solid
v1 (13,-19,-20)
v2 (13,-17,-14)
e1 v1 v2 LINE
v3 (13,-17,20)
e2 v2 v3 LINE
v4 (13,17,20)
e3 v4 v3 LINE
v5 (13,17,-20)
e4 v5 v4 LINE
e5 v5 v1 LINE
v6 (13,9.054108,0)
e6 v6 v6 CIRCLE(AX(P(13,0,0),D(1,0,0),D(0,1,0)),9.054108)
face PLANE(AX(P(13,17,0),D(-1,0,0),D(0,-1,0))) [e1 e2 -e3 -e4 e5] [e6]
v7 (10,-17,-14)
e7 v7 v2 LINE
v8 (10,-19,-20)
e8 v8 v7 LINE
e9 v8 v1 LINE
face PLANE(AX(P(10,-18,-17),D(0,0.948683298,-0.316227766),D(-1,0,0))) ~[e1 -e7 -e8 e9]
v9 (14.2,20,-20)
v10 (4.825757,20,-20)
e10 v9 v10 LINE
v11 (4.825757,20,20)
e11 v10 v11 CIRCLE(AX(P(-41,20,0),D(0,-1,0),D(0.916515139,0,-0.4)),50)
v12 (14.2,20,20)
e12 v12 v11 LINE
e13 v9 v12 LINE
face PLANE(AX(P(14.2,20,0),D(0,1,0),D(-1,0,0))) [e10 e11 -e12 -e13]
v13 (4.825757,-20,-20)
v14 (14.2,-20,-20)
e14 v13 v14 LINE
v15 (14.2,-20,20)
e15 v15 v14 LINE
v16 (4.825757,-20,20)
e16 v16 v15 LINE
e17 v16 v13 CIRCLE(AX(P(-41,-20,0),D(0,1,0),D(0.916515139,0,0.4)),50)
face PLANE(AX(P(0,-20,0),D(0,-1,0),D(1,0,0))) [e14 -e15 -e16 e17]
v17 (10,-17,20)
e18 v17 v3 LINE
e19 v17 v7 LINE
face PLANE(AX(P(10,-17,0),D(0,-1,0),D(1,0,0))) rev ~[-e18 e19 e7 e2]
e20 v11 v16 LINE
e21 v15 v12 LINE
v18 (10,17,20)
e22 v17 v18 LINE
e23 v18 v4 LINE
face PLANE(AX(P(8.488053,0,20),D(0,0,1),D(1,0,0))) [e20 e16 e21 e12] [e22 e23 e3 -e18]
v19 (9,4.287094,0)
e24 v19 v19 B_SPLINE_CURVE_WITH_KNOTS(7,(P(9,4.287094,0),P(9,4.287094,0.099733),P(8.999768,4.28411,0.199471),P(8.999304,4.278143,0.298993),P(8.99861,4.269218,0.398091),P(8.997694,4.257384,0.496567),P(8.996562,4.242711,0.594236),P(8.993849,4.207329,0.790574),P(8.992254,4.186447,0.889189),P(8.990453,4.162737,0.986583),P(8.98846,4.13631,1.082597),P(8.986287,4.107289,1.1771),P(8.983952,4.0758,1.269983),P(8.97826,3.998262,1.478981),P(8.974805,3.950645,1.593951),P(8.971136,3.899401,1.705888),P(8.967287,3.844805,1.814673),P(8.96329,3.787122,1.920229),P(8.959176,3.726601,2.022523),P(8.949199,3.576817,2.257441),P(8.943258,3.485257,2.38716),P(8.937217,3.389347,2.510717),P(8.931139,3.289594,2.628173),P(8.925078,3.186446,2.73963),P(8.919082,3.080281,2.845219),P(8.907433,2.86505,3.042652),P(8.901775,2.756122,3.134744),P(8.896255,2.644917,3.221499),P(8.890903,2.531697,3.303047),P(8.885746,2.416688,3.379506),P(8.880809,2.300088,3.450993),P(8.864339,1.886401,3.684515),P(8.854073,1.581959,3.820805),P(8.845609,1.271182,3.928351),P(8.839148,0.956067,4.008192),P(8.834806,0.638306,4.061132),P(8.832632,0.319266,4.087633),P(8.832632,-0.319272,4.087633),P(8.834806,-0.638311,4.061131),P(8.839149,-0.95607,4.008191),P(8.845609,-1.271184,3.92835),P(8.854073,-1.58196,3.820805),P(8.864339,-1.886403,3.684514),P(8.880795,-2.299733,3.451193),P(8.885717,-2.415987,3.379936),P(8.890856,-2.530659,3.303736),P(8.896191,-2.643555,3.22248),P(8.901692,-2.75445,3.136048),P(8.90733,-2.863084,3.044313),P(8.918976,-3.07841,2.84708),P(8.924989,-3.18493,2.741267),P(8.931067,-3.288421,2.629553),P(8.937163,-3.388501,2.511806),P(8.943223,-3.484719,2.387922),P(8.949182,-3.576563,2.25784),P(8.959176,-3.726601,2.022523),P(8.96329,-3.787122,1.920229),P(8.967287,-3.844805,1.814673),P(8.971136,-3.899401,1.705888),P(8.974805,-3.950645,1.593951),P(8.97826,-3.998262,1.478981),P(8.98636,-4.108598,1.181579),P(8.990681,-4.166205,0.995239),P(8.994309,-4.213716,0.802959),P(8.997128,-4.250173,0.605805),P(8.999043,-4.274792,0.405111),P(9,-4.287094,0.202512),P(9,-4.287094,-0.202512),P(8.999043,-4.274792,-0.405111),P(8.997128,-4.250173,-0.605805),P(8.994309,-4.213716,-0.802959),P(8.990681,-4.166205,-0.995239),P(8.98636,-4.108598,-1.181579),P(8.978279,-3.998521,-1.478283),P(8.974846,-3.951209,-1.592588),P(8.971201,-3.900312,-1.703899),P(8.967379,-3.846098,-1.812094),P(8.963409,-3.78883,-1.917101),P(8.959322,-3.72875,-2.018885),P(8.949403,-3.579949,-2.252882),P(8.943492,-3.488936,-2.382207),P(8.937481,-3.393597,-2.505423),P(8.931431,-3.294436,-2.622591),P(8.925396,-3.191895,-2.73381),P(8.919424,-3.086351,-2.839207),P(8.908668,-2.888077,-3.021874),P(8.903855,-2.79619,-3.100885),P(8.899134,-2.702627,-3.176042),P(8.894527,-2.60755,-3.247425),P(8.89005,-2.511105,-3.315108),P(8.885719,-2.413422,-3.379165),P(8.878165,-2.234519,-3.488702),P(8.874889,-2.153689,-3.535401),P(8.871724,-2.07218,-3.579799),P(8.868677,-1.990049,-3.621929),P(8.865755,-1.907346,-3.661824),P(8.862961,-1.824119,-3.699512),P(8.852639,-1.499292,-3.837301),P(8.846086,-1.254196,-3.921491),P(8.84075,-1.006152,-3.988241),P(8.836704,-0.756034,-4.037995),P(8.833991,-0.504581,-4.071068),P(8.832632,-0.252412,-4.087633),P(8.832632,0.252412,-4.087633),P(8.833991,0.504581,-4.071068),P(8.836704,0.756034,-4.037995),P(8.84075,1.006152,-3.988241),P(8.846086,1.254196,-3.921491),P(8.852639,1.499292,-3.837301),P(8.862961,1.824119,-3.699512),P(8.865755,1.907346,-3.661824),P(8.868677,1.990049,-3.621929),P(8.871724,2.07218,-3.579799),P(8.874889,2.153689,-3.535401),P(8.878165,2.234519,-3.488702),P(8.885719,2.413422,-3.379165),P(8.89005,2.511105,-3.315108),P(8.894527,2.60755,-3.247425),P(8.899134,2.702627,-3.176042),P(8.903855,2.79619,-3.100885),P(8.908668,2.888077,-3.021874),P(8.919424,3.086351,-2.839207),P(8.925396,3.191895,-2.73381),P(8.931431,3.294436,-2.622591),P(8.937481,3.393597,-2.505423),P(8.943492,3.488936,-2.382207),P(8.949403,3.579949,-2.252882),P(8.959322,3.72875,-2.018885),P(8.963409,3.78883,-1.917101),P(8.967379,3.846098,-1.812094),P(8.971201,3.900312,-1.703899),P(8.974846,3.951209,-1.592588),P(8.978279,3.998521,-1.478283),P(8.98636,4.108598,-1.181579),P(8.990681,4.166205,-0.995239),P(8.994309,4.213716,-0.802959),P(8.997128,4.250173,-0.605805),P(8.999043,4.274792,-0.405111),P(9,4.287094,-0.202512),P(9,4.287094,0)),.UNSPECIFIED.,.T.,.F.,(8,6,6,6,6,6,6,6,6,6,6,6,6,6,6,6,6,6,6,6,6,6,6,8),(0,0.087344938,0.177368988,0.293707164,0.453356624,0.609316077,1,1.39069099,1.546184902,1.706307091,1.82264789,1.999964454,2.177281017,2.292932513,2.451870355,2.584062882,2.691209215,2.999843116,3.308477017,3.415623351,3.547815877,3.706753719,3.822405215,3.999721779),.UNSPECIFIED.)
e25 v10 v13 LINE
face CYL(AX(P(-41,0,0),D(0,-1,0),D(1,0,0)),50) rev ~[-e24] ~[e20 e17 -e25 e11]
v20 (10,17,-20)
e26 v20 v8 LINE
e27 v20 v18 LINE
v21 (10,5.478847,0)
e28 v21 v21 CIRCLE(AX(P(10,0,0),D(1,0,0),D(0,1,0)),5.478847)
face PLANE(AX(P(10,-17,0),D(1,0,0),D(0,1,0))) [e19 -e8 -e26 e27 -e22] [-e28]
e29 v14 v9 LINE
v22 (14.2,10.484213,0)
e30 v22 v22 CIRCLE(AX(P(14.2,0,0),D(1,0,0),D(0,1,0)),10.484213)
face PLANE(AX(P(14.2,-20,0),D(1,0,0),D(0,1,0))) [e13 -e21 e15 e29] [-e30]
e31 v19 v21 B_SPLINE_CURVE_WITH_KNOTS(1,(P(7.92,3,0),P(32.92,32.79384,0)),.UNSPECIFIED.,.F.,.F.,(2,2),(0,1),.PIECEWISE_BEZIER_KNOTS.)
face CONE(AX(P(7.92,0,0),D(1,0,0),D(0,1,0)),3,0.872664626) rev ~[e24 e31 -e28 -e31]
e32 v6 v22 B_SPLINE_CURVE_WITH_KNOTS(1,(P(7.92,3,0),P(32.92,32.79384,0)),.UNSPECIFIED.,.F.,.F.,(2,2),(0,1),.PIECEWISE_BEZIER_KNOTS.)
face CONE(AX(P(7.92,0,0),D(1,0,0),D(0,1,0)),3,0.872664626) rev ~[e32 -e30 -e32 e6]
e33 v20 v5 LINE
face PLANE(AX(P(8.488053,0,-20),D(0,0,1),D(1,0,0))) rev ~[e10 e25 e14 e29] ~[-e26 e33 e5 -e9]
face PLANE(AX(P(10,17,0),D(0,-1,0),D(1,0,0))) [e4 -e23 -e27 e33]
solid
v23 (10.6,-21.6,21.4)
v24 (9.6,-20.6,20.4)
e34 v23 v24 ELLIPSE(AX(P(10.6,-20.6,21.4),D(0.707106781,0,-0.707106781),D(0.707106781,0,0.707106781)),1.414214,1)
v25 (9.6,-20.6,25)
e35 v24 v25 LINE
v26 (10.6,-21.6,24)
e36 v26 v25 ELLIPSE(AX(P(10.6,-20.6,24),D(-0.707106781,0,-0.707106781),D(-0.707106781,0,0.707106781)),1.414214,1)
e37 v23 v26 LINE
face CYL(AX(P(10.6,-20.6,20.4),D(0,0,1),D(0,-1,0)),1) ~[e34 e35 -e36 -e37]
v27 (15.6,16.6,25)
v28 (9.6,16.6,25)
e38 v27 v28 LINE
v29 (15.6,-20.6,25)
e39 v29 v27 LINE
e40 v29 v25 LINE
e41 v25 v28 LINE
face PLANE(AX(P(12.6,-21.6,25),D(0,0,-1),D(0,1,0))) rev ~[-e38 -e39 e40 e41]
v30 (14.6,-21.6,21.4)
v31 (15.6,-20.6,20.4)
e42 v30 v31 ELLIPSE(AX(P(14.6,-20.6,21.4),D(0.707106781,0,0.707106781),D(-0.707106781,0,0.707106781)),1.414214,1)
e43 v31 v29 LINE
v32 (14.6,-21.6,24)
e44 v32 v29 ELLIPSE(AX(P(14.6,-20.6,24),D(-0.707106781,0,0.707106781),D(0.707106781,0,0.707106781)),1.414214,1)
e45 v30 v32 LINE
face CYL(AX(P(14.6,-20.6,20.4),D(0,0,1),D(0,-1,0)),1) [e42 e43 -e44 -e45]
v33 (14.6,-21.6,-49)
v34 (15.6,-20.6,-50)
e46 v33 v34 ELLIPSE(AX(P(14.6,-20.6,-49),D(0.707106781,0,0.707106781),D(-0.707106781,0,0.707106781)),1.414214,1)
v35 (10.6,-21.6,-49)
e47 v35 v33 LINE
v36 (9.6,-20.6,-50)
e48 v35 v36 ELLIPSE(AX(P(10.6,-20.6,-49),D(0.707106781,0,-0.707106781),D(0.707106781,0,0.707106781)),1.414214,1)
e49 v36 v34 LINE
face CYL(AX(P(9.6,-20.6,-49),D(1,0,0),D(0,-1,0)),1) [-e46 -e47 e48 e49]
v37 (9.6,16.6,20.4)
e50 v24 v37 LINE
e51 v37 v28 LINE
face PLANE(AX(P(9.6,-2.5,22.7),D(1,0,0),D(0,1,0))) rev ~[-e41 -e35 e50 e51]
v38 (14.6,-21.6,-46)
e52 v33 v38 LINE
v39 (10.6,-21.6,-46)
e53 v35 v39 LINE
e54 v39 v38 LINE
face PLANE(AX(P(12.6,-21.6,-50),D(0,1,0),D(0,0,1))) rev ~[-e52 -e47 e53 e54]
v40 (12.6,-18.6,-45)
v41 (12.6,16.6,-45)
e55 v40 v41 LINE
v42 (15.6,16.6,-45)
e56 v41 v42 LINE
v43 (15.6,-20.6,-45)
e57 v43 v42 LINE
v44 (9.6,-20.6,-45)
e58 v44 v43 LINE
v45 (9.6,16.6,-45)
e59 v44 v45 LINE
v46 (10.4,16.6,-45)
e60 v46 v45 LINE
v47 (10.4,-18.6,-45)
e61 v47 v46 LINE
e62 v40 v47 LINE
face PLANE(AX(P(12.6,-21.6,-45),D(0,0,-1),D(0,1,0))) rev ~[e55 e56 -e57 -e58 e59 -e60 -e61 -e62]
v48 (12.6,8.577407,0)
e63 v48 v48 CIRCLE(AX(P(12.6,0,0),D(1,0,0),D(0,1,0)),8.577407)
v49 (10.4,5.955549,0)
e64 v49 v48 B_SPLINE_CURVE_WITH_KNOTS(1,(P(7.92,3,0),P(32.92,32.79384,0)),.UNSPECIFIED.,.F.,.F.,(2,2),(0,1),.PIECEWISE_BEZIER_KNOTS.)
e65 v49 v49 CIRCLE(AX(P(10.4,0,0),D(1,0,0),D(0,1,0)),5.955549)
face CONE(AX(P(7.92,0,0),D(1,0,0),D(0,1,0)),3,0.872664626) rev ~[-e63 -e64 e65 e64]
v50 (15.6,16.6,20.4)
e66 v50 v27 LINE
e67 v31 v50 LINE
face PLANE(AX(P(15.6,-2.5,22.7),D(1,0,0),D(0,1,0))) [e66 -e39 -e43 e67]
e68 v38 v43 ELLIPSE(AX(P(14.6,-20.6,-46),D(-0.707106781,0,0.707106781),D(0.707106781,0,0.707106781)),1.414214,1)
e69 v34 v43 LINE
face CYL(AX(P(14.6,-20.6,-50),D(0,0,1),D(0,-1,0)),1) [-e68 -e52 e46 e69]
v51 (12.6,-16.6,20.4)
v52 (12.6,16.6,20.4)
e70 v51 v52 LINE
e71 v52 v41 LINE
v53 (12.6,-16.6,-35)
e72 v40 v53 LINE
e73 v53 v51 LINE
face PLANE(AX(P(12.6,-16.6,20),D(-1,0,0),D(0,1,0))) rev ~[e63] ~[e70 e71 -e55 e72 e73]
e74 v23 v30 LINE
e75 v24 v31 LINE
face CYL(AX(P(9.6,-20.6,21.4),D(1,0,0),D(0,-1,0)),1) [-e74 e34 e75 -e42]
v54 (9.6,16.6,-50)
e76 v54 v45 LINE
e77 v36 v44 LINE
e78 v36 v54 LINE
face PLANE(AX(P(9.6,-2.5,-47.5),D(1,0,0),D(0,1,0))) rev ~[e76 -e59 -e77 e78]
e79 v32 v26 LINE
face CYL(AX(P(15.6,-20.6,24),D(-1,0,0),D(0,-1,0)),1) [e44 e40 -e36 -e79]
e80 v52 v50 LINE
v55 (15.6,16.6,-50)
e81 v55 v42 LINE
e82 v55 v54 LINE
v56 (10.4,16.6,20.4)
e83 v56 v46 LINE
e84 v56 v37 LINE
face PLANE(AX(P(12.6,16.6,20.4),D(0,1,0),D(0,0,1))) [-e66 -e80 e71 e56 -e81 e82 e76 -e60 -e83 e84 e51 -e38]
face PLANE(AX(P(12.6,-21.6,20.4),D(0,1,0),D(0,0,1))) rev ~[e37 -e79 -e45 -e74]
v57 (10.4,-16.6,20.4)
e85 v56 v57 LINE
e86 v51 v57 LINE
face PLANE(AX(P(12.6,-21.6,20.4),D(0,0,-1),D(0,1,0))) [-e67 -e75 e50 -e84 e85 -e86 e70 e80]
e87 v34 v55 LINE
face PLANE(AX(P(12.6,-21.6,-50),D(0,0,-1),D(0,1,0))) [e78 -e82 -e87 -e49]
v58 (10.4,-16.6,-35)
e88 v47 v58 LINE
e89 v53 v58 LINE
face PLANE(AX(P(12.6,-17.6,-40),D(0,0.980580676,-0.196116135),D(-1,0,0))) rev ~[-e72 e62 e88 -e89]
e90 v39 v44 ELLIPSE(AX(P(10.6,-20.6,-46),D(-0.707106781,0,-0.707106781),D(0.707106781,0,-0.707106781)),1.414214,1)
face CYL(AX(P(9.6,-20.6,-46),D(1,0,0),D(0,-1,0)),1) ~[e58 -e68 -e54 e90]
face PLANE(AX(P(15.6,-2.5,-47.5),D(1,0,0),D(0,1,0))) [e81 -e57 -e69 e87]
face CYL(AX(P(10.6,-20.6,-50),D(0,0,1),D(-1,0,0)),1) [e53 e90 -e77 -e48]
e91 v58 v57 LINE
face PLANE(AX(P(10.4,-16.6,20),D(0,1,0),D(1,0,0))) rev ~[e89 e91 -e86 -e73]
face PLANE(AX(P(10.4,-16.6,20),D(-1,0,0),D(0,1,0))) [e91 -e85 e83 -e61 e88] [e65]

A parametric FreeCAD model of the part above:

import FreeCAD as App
import Part
import Sketcher


def edges_at(feature, points):
    """Names of the edges that pass closest to the given points."""
    edges = feature.Shape.Edges
    near = lambda p: min(range(len(edges)), key=lambda i: edges[i].distToShape(Part.Vertex(*p))[0])
    return sorted({f"Edge{near(p) + 1}" for p in points})


def add_polygon(sketch, points):
    """Adds a closed chain of lines whose ends are joined by coincident constraints."""
    first, n = sketch.GeometryCount, len(points)
    for a, b in zip(points, points[1:] + points[:1]):
        sketch.addGeometry(Part.LineSegment(App.Vector(*a, 0), App.Vector(*b, 0)), False)
    for i in range(n):
        sketch.addConstraint(Sketcher.Constraint("Coincident", first + i, 2, first + (i + 1) % n, 1))

doc = App.newDocument("Part")
body = doc.addObject("PartDesign::Body", "Body")

# Sketch on XY plane
sketch1 = doc.addObject("Sketcher::SketchObject", "Sketch")
body.addObject(sketch1)
sketch1.AttachmentSupport = (doc.XY_Plane, [""])
sketch1.MapMode = "FlatFace"
add_polygon(sketch1, [(14.2, -20), (14.2, 20), (0, 20), (0, -20)])  # lines 0-3
add_polygon(sketch1, [(10, -17), (10, 17), (13, 17), (13, -17)])  # lines 4-7
sketch1.addConstraint([
    Sketcher.Constraint("Vertical", 0),
    Sketcher.Constraint("Horizontal", 1),
    Sketcher.Constraint("Vertical", 2),
    Sketcher.Constraint("Horizontal", 3),
    Sketcher.Constraint("Vertical", 4),
    Sketcher.Constraint("Horizontal", 5),
    Sketcher.Constraint("Vertical", 6),
    Sketcher.Constraint("Horizontal", 7),
    Sketcher.Constraint("Symmetric", 1, 2, 2, 2, -1, 1),
    Sketcher.Constraint("DistanceX", 5, 1, 5, 2, 3.0),
    Sketcher.Constraint("DistanceY", 0, 1, 0, 2, 40.0),
    Sketcher.Constraint("DistanceY", 4, 1, 4, 2, 34.0),
    Sketcher.Constraint("DistanceX", 1, 2, 1, 1, 14.2),
    Sketcher.Constraint("DistanceX", -1, 1, 4, 2, 10.0),
    Sketcher.Constraint("DistanceY", -1, 1, 4, 2, 17.0),
])
pad1 = doc.addObject("PartDesign::Pad", "Pad")
body.addObject(pad1)
pad1.Profile = sketch1
pad1.Length = 40
pad1.Midplane = True

# Sketch on XZ plane
sketch2 = doc.addObject("Sketcher::SketchObject", "Sketch001")
body.addObject(sketch2)
sketch2.AttachmentSupport = (doc.XZ_Plane, [""])
sketch2.MapMode = "FlatFace"
sketch2.addGeometry(Part.Circle(App.Vector(-41, 0, 0), App.Vector(0, 0, 1), 50), False)
sketch2.addConstraint([
    Sketcher.Constraint("PointOnObject", 0, 3, -1),
    Sketcher.Constraint("Diameter", 0, 100.0),
    Sketcher.Constraint("DistanceX", 0, 3, -1, 1, 41.0),
])
pocket1 = doc.addObject("PartDesign::Pocket", "Pocket")
body.addObject(pocket1)
pocket1.Profile = sketch2
pocket1.Length = 50
pocket1.Midplane = True
body2 = doc.addObject("PartDesign::Body", "Body001")

# Sketch on XY plane
sketch3 = doc.addObject("Sketcher::SketchObject", "Sketch002")
body2.addObject(sketch3)
sketch3.AttachmentSupport = (doc.getObject("XY_Plane001"), [""])
sketch3.MapMode = "FlatFace"
sketch3.AttachmentOffset = App.Placement(App.Vector(0, 0, 20), App.Rotation())
add_polygon(sketch3, [(10.4, 16.6), (10.4, -16.6), (12.6, -16.6), (12.6, 16.6)])  # lines 0-3
sketch3.addConstraint([
    Sketcher.Constraint("Vertical", 0),
    Sketcher.Constraint("Horizontal", 1),
    Sketcher.Constraint("Vertical", 2),
    Sketcher.Constraint("Horizontal", 3),
    Sketcher.Constraint("DistanceX", 1, 1, 1, 2, 2.2),
    Sketcher.Constraint("DistanceY", 0, 2, 0, 1, 33.2),
    Sketcher.Constraint("DistanceX", -1, 1, 0, 2, 10.4),
    Sketcher.Constraint("DistanceY", 0, 2, -1, 1, 16.6),
])
pad2 = doc.addObject("PartDesign::Pad", "Pad001")
body2.addObject(pad2)
pad2.Profile = sketch3
pad2.Type = "TwoLengths"
pad2.Length = 70
pad2.Length2 = 5
pad2.Reversed = True
body3 = doc.addObject("PartDesign::Body", "Body002")

# Sketch on YZ plane
sketch4 = doc.addObject("Sketcher::SketchObject", "Sketch003")
body3.addObject(sketch4)
sketch4.AttachmentSupport = (doc.getObject("YZ_Plane002"), [""])
sketch4.MapMode = "FlatFace"
sketch4.AttachmentOffset = App.Placement(App.Vector(0, 0, 7.92), App.Rotation())
sketch4.addGeometry(Part.Circle(App.Vector(0, 0, 0), App.Vector(0, 0, 1), 3), False)
sketch4.addConstraint([
    Sketcher.Constraint("Coincident", 0, 3, -1, 1),
    Sketcher.Constraint("Diameter", 0, 6.0),
])
pad3 = doc.addObject("PartDesign::Pad", "Pad002")
body3.addObject(pad3)
pad3.Profile = sketch4
pad3.Length = 25
pad3.TaperAngle = 50
doc.recompute()

body4 = doc.addObject("PartDesign::Body", "Body003")
body4.BaseFeature = body3
boolean = doc.addObject("PartDesign::Boolean", "Boolean")
body.addObject(boolean)
boolean.Type = "Cut"
boolean.addObjects([body4])
doc.recompute()

chamfer = doc.addObject("PartDesign::Chamfer", "Chamfer")
body.addObject(chamfer)
chamfer.Base = (boolean, edges_at(boolean, [(11.5, -17, -20)]))
chamfer.ChamferType = "Two distances"
chamfer.Size = 2
chamfer.Size2 = 6
doc.recompute()

boolean2 = doc.addObject("PartDesign::Boolean", "Boolean001")
body2.addObject(boolean2)
boolean2.Type = "Cut"
boolean2.addObjects([body3])

# Sketch on YZ plane
sketch5 = doc.addObject("Sketcher::SketchObject", "Sketch004")
body2.addObject(sketch5)
sketch5.AttachmentSupport = (doc.getObject("YZ_Plane001"), [""])
sketch5.MapMode = "FlatFace"
sketch5.AttachmentOffset = App.Placement(App.Vector(0, 0, 12.6), App.Rotation())
add_polygon(sketch5, [(-21.6, 25), (-21.6, 20.4), (16.6, 20.4), (16.6, 25)])  # lines 0-3
add_polygon(sketch5, [(-21.6, -45), (-21.6, -50), (16.6, -50), (16.6, -45)])  # lines 4-7
sketch5.addConstraint([
    Sketcher.Constraint("Vertical", 0),
    Sketcher.Constraint("Horizontal", 1),
    Sketcher.Constraint("Vertical", 2),
    Sketcher.Constraint("Horizontal", 3),
    Sketcher.Constraint("Vertical", 4),
    Sketcher.Constraint("Horizontal", 5),
    Sketcher.Constraint("Vertical", 6),
    Sketcher.Constraint("Horizontal", 7),
    Sketcher.Constraint("Vertical", 3, 2, 4, 2),
    Sketcher.Constraint("Vertical", 2, 2, 5, 2),
    Sketcher.Constraint("DistanceY", 4, 2, 4, 1, 5.0),
    Sketcher.Constraint("DistanceX", 1, 1, 1, 2, 38.2),
    Sketcher.Constraint("DistanceY", 0, 2, 0, 1, 4.6),
    Sketcher.Constraint("DistanceY", -1, 1, 2, 2, 25.0),
    Sketcher.Constraint("DistanceY", 4, 2, -1, 1, 50.0),
    Sketcher.Constraint("DistanceX", 0, 2, -1, 1, 21.6),
])
pad4 = doc.addObject("PartDesign::Pad", "Pad003")
body2.addObject(pad4)
pad4.Profile = sketch5
pad4.Type = "TwoLengths"
pad4.Length = 3
pad4.Length2 = 3
doc.recompute()

fillet = doc.addObject("PartDesign::Fillet", "Fillet")
body2.addObject(fillet)
fillet.Base = (pad4, edges_at(pad4, [
    (12.6, -21.6, -45),
    (15.6, -21.6, -47.5),
    (12.6, -21.6, -50),
    (9.6, -21.6, -47.5),
    (15.6, -21.6, 22.7),
    (12.6, -21.6, 20.4),
    (9.6, -21.6, 22.7),
    (12.6, -21.6, 25),
]))
fillet.Radius = 1
doc.recompute()

chamfer2 = doc.addObject("PartDesign::Chamfer", "Chamfer001")
body2.addObject(chamfer2)
chamfer2.Base = (fillet, edges_at(fillet, [(11.5, -16.6, -45)]))
chamfer2.ChamferType = "Two distances"
chamfer2.Size = 2
chamfer2.Size2 = 10

doc.recompute()
